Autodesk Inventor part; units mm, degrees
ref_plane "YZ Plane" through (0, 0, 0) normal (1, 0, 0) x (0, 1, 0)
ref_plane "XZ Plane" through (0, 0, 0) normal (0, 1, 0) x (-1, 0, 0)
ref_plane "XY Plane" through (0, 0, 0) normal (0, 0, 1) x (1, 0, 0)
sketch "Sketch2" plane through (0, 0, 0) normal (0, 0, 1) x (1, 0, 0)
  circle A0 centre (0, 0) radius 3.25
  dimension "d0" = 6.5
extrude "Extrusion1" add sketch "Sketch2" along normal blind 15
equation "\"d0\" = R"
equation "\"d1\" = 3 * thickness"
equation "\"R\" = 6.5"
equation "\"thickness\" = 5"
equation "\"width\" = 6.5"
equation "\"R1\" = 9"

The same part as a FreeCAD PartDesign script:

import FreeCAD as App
import Part
import Sketcher
from FreeCAD import Vector

doc = App.newDocument("Part")
body = doc.addObject("PartDesign::Body", "Body")

# Sketch on XY plane
sketch1 = body.newObject("Sketcher::SketchObject", "Sketch")
sketch1.AttachmentSupport = (doc.getObject("XY_Plane"), [""])
sketch1.MapMode = "FlatFace"
sketch1.addGeometry(Part.Circle(Vector(0, 0, 0), Vector(0, 0, 1), 3.2), False)
sketch1.addConstraint([
    Sketcher.Constraint("Coincident", 0, 3, -1, 1),
    Sketcher.Constraint("Diameter", 0, 6.5),
])
pad1 = body.newObject("PartDesign::Pad", "Pad")
pad1.Profile = sketch1
pad1.Length = 15

doc.recompute()
